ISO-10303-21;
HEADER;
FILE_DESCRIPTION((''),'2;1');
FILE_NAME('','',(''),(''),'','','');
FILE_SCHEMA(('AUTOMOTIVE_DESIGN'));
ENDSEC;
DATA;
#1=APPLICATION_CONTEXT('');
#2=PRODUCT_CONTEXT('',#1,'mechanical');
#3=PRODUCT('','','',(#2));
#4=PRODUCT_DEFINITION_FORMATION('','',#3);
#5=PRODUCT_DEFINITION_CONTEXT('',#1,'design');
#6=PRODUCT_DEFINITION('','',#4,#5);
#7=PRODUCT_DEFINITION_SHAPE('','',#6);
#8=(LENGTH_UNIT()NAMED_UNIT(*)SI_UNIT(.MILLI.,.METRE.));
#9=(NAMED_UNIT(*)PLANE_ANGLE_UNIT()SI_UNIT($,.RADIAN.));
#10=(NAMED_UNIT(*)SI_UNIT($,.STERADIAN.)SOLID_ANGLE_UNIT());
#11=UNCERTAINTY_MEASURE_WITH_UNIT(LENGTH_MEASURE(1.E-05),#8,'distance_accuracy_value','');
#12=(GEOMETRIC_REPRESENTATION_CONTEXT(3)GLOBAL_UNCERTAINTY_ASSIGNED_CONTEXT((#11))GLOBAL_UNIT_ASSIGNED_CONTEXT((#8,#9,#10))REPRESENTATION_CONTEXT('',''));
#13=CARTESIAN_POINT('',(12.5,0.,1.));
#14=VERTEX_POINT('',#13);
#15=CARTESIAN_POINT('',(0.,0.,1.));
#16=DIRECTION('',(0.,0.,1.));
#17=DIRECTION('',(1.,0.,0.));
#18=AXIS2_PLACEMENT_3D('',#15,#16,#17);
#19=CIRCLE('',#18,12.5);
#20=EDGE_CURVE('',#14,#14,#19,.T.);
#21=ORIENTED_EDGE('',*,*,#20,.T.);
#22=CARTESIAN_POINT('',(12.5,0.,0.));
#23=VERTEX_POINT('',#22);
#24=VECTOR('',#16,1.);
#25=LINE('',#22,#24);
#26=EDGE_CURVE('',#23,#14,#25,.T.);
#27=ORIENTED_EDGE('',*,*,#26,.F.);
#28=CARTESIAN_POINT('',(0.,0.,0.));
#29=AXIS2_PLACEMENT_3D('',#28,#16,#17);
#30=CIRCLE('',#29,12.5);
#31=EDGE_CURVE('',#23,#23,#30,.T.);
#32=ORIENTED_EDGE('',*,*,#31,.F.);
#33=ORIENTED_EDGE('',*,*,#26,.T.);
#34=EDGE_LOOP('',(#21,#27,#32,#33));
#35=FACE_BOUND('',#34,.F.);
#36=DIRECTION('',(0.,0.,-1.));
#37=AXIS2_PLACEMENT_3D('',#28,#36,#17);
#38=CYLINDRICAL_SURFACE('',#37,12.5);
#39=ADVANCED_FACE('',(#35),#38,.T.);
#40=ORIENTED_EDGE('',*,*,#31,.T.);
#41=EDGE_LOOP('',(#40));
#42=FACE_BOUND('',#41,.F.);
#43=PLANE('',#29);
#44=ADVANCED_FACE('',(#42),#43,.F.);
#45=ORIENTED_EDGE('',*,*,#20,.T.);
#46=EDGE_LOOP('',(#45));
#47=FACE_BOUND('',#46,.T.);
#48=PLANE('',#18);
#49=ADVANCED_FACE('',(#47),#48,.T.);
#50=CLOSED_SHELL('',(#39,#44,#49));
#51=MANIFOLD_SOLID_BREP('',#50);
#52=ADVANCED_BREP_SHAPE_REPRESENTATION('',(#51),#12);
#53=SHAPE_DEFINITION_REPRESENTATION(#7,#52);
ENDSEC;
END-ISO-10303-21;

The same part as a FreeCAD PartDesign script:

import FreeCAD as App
import Part
import Sketcher

V = App.Vector

doc = App.newDocument("Part")
body = doc.addObject("PartDesign::Body", "Body")

sketch1 = body.newObject("Sketcher::SketchObject", "Sketch")
sketch1.AttachmentSupport = (doc.getObject("XY_Plane"), [""])
sketch1.MapMode = "FlatFace"
sketch1.addGeometry(Part.Circle(V(0, 0, 0), V(0, 0, 1), 12.5), False)
sketch1.addConstraint([
    Sketcher.Constraint("Coincident", 0, 3, -1, 1),
    Sketcher.Constraint("Diameter", 0, 25.0),
])
pad1 = body.newObject("PartDesign::Pad", "Pad")
pad1.Profile = sketch1
pad1.Length = 1

doc.recompute()
